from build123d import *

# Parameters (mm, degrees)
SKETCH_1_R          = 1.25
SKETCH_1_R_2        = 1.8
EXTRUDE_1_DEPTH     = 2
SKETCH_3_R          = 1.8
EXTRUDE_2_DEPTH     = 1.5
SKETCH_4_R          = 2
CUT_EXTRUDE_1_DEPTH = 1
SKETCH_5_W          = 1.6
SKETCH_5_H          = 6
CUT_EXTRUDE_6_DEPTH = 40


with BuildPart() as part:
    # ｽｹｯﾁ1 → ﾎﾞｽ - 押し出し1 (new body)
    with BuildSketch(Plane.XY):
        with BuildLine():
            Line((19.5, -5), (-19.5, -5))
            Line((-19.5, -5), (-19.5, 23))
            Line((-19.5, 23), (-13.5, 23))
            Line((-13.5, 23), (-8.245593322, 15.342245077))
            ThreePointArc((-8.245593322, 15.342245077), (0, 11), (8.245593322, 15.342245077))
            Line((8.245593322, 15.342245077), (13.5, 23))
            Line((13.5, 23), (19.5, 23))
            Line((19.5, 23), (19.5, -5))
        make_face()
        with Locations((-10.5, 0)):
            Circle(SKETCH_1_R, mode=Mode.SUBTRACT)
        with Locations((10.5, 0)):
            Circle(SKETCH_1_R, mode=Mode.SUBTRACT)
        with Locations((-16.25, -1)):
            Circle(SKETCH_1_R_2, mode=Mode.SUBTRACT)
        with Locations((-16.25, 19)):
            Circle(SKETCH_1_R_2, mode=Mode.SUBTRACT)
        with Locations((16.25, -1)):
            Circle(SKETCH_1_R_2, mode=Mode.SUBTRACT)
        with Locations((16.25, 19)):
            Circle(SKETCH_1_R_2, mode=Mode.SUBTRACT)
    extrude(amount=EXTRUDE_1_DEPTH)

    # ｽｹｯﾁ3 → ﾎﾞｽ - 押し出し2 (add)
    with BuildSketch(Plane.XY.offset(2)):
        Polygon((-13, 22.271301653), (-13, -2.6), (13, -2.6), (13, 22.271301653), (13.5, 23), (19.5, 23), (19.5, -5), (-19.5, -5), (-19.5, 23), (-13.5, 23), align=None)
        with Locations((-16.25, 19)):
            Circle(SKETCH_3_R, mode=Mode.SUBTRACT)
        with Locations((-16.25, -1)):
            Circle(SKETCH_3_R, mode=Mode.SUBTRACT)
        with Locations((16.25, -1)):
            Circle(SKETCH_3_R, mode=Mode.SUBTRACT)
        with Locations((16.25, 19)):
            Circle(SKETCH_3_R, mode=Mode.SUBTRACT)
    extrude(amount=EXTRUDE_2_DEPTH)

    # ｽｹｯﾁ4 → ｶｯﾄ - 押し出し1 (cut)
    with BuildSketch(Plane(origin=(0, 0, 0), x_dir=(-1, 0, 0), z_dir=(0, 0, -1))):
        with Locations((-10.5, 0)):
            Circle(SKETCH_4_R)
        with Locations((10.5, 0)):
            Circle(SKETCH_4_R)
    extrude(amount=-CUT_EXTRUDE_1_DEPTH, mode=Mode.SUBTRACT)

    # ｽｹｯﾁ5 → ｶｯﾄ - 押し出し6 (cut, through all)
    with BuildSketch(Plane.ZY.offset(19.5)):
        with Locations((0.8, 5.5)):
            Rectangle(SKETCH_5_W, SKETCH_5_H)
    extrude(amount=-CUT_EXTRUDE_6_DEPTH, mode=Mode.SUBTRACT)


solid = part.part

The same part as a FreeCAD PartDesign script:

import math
import FreeCAD as App
import Part
import Sketcher
from FreeCAD import Vector
Q = App.Units.Quantity


def add_polygon(sketch, points):
    """Adds a closed chain of lines whose ends are joined by coincident constraints."""
    first, n = sketch.GeometryCount, len(points)
    for a, b in zip(points, points[1:] + points[:1]):
        sketch.addGeometry(Part.LineSegment(App.Vector(*a, 0), App.Vector(*b, 0)), False)
    for i in range(n):
        sketch.addConstraint(Sketcher.Constraint("Coincident", first + i, 2, first + (i + 1) % n, 1))

doc = App.newDocument("Part")
params = doc.addObject("Spreadsheet::Sheet", "Params")
for row, (alias, value) in enumerate([
    ("sketch1_radius", "10 mm"),
    ("sketch1_diameter", "3.6 mm"),
    ("sketch1_diameter2", "2.5 mm"),
    ("sketch1_width", "39 mm"),
    ("sketch1_width2", "6 mm"),
    ("pad1_length", "2 mm"),
    ("sketch2_diameter", "3.6 mm"),
    ("sketch2_width", "6 mm"),
    ("sketch2_width2", "39 mm"),
    ("sketch2_width3", "26 mm"),
    ("sketch2_height", "28 mm"),
    ("pad2_length", "1.5 mm"),
    ("sketch3_diameter", "4 mm"),
    ("pocket1_length", "1 mm"),
    ("sketch4_width", "6 mm"),
    ("sketch4_height", "1.6 mm"),
], start=1):
    params.set(f"A{row}", alias)
    params.set(f"B{row}", "=" + value)
    params.setAlias(f"B{row}", alias)

body = doc.addObject("PartDesign::Body", "Body")

# Sketch on XY plane
sketch1 = body.newObject("Sketcher::SketchObject", "Sketch")
sketch1.AttachmentSupport = (doc.getObject("XY_Plane"), [""])
sketch1.MapMode = "FlatFace"
sketch1.addGeometry([
    Part.LineSegment(Vector(-19.5, -5, 0), Vector(19.5, -5, 0)),  # 0
    Part.LineSegment(Vector(19.5, -5, 0), Vector(19.5, 23, 0)),  # 1
    Part.LineSegment(Vector(19.5, 23, 0), Vector(13.5, 23, 0)),  # 2
    Part.LineSegment(Vector(13.5, 23, 0), Vector(8.2, 15.3, 0)),  # 3
    Part.ArcOfCircle(Part.Circle(Vector(0, 21, 0), Vector(0, 0, 1), 10), math.radians(-146), math.radians(-34)),  # 4
    Part.LineSegment(Vector(-8.2, 15.3, 0), Vector(-13.5, 23, 0)),  # 5
    Part.LineSegment(Vector(-13.5, 23, 0), Vector(-19.5, 23, 0)),  # 6
    Part.LineSegment(Vector(-19.5, 23, 0), Vector(-19.5, -5, 0)),  # 7
    Part.Circle(Vector(16.2, -1, 0), Vector(0, 0, 1), 1.8),  # 8
    Part.Circle(Vector(10.5, 0, 0), Vector(0, 0, 1), 1.2),  # 9
    Part.Circle(Vector(-10.5, 0, 0), Vector(0, 0, 1), 1.2),  # 10
    Part.Circle(Vector(-16.2, -1, 0), Vector(0, 0, 1), 1.8),  # 11
    Part.Circle(Vector(16.2, 19, 0), Vector(0, 0, 1), 1.8),  # 12
    Part.Circle(Vector(-16.2, 19, 0), Vector(0, 0, 1), 1.8),  # 13
], False)
sketch1.addConstraint([
    Sketcher.Constraint("Coincident", 0, 2, 1, 1),
    Sketcher.Constraint("Coincident", 1, 2, 2, 1),
    Sketcher.Constraint("Coincident", 2, 2, 3, 1),
    Sketcher.Constraint("Tangent", 3, 2, 4, 2),
    Sketcher.Constraint("Tangent", 4, 1, 5, 1),
    Sketcher.Constraint("Coincident", 5, 2, 6, 1),
    Sketcher.Constraint("Coincident", 6, 2, 7, 1),
    Sketcher.Constraint("Coincident", 7, 2, 0, 1),
    Sketcher.Constraint("Horizontal", 0),
    Sketcher.Constraint("Vertical", 1),
    Sketcher.Constraint("Horizontal", 2),
    Sketcher.Constraint("Horizontal", 6),
    Sketcher.Constraint("Vertical", 7),
    Sketcher.Constraint("Equal", 9, 10),
    Sketcher.Constraint("Equal", 8, 11),
    Sketcher.Constraint("Equal", 11, 12),
    Sketcher.Constraint("Equal", 12, 13),
    Sketcher.Constraint("Symmetric", 9, 3, 10, 3, -1, 1),
    Sketcher.Constraint("Symmetric", 8, 3, 11, 3, -2),
    Sketcher.Constraint("Symmetric", 12, 3, 13, 3, -2),
    Sketcher.Constraint("Symmetric", 3, 2, 4, 1, -2),
    Sketcher.Constraint("Symmetric", 1, 2, 6, 2, -2),
    Sketcher.Constraint("PointOnObject", 9, 3, -1),
    Sketcher.Constraint("Vertical", 8, 3, 12, 3),
    Sketcher.Constraint("Radius", 4, Q("10 mm")),
    Sketcher.Constraint("Diameter", 8, Q("3.6 mm")),
    Sketcher.Constraint("Diameter", 9, Q("2.5 mm")),
    Sketcher.Constraint("DistanceX", 0, 1, 0, 2, Q("39 mm")),
    Sketcher.Constraint("DistanceX", 2, 2, 2, 1, Q("6 mm")),
    Sketcher.Constraint("DistanceY", 1, 1, 1, 2, Q("28 mm")),
    Sketcher.Constraint("DistanceY", -1, 1, 4, 3, Q("21 mm")),
    Sketcher.Constraint("DistanceY", 8, 3, -1, 1, Q("1 mm")),
    Sketcher.Constraint("DistanceY", -1, 1, 12, 3, Q("19 mm")),
    Sketcher.Constraint("DistanceY", 0, 2, -1, 1, Q("5 mm")),
    Sketcher.Constraint("DistanceX", 10, 3, 9, 3, Q("21 mm")),
    Sketcher.Constraint("DistanceX", 11, 3, 8, 3, Q("32.5 mm")),
])
sketch1.setExpression("Constraints[24]", "Params.sketch1_radius")
sketch1.setExpression("Constraints[25]", "Params.sketch1_diameter")
sketch1.setExpression("Constraints[26]", "Params.sketch1_diameter2")
sketch1.setExpression("Constraints[27]", "Params.sketch1_width")
sketch1.setExpression("Constraints[28]", "Params.sketch1_width2")
pad1 = body.newObject("PartDesign::Pad", "Pad")
pad1.Profile = sketch1
pad1.setExpression("Length", "Params.pad1_length")

# Sketch on XY plane
sketch2 = body.newObject("Sketcher::SketchObject", "Sketch001")
sketch2.AttachmentSupport = (doc.getObject("XY_Plane"), [""])
sketch2.MapMode = "FlatFace"
sketch2.AttachmentOffset = App.Placement(Vector(0, 0, 2), App.Rotation())
add_polygon(sketch2, [(-13, -2.6), (-13, 22.3), (-13.5, 23), (-19.5, 23), (-19.5, -5), (19.5, -5), (19.5, 23), (13.5, 23), (13, 22.3), (13, -2.6)])  # lines 0-9
sketch2.addGeometry(Part.Circle(Vector(16.2, -1, 0), Vector(0, 0, 1), 1.8), False)  # 10
sketch2.addGeometry(Part.Circle(Vector(-16.2, -1, 0), Vector(0, 0, 1), 1.8), False)  # 11
sketch2.addGeometry(Part.Circle(Vector(16.2, 19, 0), Vector(0, 0, 1), 1.8), False)  # 12
sketch2.addGeometry(Part.Circle(Vector(-16.2, 19, 0), Vector(0, 0, 1), 1.8), False)  # 13
sketch2.addConstraint([
    Sketcher.Constraint("Vertical", 0),
    Sketcher.Constraint("Horizontal", 2),
    Sketcher.Constraint("Vertical", 3),
    Sketcher.Constraint("Horizontal", 4),
    Sketcher.Constraint("Vertical", 5),
    Sketcher.Constraint("Horizontal", 6),
    Sketcher.Constraint("Vertical", 8),
    Sketcher.Constraint("Horizontal", 9),
    Sketcher.Constraint("Equal", 10, 11),
    Sketcher.Constraint("Equal", 11, 12),
    Sketcher.Constraint("Equal", 12, 13),
    Sketcher.Constraint("Symmetric", 10, 3, 11, 3, -2),
    Sketcher.Constraint("Symmetric", 12, 3, 13, 3, -2),
    Sketcher.Constraint("Symmetric", 2, 2, 5, 2, -2),
    Sketcher.Constraint("Symmetric", 0, 2, 7, 2, -2),
    Sketcher.Constraint("Vertical", 10, 3, 12, 3),
    Sketcher.Constraint("Equal", 2, 6),
    Sketcher.Constraint("Diameter", 10, Q("3.6 mm")),
    Sketcher.Constraint("DistanceX", 2, 2, 2, 1, Q("6 mm")),
    Sketcher.Constraint("DistanceX", 4, 1, 4, 2, Q("39 mm")),
    Sketcher.Constraint("DistanceX", 9, 2, 9, 1, Q("26 mm")),
    Sketcher.Constraint("DistanceY", 3, 2, 3, 1, Q("28 mm")),
    Sketcher.Constraint("DistanceY", 10, 3, -1, 1, Q("1 mm")),
    Sketcher.Constraint("DistanceY", -1, 1, 12, 3, Q("19 mm")),
    Sketcher.Constraint("DistanceY", -1, 1, 1, 2, Q("23 mm")),
    Sketcher.Constraint("DistanceY", 8, 2, -1, 1, Q("2.6 mm")),
    Sketcher.Constraint("DistanceX", 11, 3, 10, 3, Q("32.5 mm")),
    Sketcher.Constraint("DistanceY", 0, 1, 0, 2, Q("24.871302 mm")),
])
sketch2.setExpression("Constraints[27]", "Params.sketch2_diameter")
sketch2.setExpression("Constraints[28]", "Params.sketch2_width")
sketch2.setExpression("Constraints[29]", "Params.sketch2_width2")
sketch2.setExpression("Constraints[30]", "Params.sketch2_width3")
sketch2.setExpression("Constraints[31]", "Params.sketch2_height")
pad2 = body.newObject("PartDesign::Pad", "Pad001")
pad2.Profile = sketch2
pad2.setExpression("Length", "Params.pad2_length")

# Sketch on XY plane
sketch3 = body.newObject("Sketcher::SketchObject", "Sketch002")
sketch3.AttachmentSupport = (doc.getObject("XY_Plane"), [""])
sketch3.MapMode = "FlatFace"
sketch3.addGeometry([
    Part.Circle(Vector(10.5, 0, 0), Vector(0, 0, 1), 2),
    Part.Circle(Vector(-10.5, 0, 0), Vector(0, 0, 1), 2),
], False)
sketch3.addConstraint([
    Sketcher.Constraint("Equal", 0, 1),
    Sketcher.Constraint("Symmetric", 0, 3, 1, 3, -1, 1),
    Sketcher.Constraint("PointOnObject", 0, 3, -1),
    Sketcher.Constraint("Diameter", 0, Q("4 mm")),
    Sketcher.Constraint("DistanceX", 1, 3, 0, 3, Q("21 mm")),
])
sketch3.setExpression("Constraints[3]", "Params.sketch3_diameter")
pocket1 = body.newObject("PartDesign::Pocket", "Pocket")
pocket1.Profile = sketch3
pocket1.setExpression("Length", "Params.pocket1_length")
pocket1.Reversed = True

# Sketch on YZ plane
sketch4 = body.newObject("Sketcher::SketchObject", "Sketch003")
sketch4.AttachmentSupport = (doc.getObject("YZ_Plane"), [""])
sketch4.MapMode = "FlatFace"
sketch4.AttachmentOffset = App.Placement(Vector(0, 0, -19.5), App.Rotation())
add_polygon(sketch4, [(8.5, 0), (2.5, 0), (2.5, 1.6), (8.5, 1.6)])  # lines 0-3
sketch4.addConstraint([
    Sketcher.Constraint("Horizontal", 0),
    Sketcher.Constraint("Vertical", 1),
    Sketcher.Constraint("Horizontal", 2),
    Sketcher.Constraint("Vertical", 3),
    Sketcher.Constraint("PointOnObject", 0, 2, -1),
    Sketcher.Constraint("DistanceX", 0, 2, 0, 1, Q("6 mm")),
    Sketcher.Constraint("DistanceY", 1, 1, 1, 2, Q("1.6 mm")),
    Sketcher.Constraint("DistanceX", -1, 1, 0, 2, Q("2.5 mm")),
])
sketch4.setExpression("Constraints[9]", "Params.sketch4_width")
sketch4.setExpression("Constraints[10]", "Params.sketch4_height")
pocket2 = body.newObject("PartDesign::Pocket", "Pocket001")
pocket2.Profile = sketch4
pocket2.Type = "ThroughAll"
pocket2.Reversed = True

doc.recompute()
